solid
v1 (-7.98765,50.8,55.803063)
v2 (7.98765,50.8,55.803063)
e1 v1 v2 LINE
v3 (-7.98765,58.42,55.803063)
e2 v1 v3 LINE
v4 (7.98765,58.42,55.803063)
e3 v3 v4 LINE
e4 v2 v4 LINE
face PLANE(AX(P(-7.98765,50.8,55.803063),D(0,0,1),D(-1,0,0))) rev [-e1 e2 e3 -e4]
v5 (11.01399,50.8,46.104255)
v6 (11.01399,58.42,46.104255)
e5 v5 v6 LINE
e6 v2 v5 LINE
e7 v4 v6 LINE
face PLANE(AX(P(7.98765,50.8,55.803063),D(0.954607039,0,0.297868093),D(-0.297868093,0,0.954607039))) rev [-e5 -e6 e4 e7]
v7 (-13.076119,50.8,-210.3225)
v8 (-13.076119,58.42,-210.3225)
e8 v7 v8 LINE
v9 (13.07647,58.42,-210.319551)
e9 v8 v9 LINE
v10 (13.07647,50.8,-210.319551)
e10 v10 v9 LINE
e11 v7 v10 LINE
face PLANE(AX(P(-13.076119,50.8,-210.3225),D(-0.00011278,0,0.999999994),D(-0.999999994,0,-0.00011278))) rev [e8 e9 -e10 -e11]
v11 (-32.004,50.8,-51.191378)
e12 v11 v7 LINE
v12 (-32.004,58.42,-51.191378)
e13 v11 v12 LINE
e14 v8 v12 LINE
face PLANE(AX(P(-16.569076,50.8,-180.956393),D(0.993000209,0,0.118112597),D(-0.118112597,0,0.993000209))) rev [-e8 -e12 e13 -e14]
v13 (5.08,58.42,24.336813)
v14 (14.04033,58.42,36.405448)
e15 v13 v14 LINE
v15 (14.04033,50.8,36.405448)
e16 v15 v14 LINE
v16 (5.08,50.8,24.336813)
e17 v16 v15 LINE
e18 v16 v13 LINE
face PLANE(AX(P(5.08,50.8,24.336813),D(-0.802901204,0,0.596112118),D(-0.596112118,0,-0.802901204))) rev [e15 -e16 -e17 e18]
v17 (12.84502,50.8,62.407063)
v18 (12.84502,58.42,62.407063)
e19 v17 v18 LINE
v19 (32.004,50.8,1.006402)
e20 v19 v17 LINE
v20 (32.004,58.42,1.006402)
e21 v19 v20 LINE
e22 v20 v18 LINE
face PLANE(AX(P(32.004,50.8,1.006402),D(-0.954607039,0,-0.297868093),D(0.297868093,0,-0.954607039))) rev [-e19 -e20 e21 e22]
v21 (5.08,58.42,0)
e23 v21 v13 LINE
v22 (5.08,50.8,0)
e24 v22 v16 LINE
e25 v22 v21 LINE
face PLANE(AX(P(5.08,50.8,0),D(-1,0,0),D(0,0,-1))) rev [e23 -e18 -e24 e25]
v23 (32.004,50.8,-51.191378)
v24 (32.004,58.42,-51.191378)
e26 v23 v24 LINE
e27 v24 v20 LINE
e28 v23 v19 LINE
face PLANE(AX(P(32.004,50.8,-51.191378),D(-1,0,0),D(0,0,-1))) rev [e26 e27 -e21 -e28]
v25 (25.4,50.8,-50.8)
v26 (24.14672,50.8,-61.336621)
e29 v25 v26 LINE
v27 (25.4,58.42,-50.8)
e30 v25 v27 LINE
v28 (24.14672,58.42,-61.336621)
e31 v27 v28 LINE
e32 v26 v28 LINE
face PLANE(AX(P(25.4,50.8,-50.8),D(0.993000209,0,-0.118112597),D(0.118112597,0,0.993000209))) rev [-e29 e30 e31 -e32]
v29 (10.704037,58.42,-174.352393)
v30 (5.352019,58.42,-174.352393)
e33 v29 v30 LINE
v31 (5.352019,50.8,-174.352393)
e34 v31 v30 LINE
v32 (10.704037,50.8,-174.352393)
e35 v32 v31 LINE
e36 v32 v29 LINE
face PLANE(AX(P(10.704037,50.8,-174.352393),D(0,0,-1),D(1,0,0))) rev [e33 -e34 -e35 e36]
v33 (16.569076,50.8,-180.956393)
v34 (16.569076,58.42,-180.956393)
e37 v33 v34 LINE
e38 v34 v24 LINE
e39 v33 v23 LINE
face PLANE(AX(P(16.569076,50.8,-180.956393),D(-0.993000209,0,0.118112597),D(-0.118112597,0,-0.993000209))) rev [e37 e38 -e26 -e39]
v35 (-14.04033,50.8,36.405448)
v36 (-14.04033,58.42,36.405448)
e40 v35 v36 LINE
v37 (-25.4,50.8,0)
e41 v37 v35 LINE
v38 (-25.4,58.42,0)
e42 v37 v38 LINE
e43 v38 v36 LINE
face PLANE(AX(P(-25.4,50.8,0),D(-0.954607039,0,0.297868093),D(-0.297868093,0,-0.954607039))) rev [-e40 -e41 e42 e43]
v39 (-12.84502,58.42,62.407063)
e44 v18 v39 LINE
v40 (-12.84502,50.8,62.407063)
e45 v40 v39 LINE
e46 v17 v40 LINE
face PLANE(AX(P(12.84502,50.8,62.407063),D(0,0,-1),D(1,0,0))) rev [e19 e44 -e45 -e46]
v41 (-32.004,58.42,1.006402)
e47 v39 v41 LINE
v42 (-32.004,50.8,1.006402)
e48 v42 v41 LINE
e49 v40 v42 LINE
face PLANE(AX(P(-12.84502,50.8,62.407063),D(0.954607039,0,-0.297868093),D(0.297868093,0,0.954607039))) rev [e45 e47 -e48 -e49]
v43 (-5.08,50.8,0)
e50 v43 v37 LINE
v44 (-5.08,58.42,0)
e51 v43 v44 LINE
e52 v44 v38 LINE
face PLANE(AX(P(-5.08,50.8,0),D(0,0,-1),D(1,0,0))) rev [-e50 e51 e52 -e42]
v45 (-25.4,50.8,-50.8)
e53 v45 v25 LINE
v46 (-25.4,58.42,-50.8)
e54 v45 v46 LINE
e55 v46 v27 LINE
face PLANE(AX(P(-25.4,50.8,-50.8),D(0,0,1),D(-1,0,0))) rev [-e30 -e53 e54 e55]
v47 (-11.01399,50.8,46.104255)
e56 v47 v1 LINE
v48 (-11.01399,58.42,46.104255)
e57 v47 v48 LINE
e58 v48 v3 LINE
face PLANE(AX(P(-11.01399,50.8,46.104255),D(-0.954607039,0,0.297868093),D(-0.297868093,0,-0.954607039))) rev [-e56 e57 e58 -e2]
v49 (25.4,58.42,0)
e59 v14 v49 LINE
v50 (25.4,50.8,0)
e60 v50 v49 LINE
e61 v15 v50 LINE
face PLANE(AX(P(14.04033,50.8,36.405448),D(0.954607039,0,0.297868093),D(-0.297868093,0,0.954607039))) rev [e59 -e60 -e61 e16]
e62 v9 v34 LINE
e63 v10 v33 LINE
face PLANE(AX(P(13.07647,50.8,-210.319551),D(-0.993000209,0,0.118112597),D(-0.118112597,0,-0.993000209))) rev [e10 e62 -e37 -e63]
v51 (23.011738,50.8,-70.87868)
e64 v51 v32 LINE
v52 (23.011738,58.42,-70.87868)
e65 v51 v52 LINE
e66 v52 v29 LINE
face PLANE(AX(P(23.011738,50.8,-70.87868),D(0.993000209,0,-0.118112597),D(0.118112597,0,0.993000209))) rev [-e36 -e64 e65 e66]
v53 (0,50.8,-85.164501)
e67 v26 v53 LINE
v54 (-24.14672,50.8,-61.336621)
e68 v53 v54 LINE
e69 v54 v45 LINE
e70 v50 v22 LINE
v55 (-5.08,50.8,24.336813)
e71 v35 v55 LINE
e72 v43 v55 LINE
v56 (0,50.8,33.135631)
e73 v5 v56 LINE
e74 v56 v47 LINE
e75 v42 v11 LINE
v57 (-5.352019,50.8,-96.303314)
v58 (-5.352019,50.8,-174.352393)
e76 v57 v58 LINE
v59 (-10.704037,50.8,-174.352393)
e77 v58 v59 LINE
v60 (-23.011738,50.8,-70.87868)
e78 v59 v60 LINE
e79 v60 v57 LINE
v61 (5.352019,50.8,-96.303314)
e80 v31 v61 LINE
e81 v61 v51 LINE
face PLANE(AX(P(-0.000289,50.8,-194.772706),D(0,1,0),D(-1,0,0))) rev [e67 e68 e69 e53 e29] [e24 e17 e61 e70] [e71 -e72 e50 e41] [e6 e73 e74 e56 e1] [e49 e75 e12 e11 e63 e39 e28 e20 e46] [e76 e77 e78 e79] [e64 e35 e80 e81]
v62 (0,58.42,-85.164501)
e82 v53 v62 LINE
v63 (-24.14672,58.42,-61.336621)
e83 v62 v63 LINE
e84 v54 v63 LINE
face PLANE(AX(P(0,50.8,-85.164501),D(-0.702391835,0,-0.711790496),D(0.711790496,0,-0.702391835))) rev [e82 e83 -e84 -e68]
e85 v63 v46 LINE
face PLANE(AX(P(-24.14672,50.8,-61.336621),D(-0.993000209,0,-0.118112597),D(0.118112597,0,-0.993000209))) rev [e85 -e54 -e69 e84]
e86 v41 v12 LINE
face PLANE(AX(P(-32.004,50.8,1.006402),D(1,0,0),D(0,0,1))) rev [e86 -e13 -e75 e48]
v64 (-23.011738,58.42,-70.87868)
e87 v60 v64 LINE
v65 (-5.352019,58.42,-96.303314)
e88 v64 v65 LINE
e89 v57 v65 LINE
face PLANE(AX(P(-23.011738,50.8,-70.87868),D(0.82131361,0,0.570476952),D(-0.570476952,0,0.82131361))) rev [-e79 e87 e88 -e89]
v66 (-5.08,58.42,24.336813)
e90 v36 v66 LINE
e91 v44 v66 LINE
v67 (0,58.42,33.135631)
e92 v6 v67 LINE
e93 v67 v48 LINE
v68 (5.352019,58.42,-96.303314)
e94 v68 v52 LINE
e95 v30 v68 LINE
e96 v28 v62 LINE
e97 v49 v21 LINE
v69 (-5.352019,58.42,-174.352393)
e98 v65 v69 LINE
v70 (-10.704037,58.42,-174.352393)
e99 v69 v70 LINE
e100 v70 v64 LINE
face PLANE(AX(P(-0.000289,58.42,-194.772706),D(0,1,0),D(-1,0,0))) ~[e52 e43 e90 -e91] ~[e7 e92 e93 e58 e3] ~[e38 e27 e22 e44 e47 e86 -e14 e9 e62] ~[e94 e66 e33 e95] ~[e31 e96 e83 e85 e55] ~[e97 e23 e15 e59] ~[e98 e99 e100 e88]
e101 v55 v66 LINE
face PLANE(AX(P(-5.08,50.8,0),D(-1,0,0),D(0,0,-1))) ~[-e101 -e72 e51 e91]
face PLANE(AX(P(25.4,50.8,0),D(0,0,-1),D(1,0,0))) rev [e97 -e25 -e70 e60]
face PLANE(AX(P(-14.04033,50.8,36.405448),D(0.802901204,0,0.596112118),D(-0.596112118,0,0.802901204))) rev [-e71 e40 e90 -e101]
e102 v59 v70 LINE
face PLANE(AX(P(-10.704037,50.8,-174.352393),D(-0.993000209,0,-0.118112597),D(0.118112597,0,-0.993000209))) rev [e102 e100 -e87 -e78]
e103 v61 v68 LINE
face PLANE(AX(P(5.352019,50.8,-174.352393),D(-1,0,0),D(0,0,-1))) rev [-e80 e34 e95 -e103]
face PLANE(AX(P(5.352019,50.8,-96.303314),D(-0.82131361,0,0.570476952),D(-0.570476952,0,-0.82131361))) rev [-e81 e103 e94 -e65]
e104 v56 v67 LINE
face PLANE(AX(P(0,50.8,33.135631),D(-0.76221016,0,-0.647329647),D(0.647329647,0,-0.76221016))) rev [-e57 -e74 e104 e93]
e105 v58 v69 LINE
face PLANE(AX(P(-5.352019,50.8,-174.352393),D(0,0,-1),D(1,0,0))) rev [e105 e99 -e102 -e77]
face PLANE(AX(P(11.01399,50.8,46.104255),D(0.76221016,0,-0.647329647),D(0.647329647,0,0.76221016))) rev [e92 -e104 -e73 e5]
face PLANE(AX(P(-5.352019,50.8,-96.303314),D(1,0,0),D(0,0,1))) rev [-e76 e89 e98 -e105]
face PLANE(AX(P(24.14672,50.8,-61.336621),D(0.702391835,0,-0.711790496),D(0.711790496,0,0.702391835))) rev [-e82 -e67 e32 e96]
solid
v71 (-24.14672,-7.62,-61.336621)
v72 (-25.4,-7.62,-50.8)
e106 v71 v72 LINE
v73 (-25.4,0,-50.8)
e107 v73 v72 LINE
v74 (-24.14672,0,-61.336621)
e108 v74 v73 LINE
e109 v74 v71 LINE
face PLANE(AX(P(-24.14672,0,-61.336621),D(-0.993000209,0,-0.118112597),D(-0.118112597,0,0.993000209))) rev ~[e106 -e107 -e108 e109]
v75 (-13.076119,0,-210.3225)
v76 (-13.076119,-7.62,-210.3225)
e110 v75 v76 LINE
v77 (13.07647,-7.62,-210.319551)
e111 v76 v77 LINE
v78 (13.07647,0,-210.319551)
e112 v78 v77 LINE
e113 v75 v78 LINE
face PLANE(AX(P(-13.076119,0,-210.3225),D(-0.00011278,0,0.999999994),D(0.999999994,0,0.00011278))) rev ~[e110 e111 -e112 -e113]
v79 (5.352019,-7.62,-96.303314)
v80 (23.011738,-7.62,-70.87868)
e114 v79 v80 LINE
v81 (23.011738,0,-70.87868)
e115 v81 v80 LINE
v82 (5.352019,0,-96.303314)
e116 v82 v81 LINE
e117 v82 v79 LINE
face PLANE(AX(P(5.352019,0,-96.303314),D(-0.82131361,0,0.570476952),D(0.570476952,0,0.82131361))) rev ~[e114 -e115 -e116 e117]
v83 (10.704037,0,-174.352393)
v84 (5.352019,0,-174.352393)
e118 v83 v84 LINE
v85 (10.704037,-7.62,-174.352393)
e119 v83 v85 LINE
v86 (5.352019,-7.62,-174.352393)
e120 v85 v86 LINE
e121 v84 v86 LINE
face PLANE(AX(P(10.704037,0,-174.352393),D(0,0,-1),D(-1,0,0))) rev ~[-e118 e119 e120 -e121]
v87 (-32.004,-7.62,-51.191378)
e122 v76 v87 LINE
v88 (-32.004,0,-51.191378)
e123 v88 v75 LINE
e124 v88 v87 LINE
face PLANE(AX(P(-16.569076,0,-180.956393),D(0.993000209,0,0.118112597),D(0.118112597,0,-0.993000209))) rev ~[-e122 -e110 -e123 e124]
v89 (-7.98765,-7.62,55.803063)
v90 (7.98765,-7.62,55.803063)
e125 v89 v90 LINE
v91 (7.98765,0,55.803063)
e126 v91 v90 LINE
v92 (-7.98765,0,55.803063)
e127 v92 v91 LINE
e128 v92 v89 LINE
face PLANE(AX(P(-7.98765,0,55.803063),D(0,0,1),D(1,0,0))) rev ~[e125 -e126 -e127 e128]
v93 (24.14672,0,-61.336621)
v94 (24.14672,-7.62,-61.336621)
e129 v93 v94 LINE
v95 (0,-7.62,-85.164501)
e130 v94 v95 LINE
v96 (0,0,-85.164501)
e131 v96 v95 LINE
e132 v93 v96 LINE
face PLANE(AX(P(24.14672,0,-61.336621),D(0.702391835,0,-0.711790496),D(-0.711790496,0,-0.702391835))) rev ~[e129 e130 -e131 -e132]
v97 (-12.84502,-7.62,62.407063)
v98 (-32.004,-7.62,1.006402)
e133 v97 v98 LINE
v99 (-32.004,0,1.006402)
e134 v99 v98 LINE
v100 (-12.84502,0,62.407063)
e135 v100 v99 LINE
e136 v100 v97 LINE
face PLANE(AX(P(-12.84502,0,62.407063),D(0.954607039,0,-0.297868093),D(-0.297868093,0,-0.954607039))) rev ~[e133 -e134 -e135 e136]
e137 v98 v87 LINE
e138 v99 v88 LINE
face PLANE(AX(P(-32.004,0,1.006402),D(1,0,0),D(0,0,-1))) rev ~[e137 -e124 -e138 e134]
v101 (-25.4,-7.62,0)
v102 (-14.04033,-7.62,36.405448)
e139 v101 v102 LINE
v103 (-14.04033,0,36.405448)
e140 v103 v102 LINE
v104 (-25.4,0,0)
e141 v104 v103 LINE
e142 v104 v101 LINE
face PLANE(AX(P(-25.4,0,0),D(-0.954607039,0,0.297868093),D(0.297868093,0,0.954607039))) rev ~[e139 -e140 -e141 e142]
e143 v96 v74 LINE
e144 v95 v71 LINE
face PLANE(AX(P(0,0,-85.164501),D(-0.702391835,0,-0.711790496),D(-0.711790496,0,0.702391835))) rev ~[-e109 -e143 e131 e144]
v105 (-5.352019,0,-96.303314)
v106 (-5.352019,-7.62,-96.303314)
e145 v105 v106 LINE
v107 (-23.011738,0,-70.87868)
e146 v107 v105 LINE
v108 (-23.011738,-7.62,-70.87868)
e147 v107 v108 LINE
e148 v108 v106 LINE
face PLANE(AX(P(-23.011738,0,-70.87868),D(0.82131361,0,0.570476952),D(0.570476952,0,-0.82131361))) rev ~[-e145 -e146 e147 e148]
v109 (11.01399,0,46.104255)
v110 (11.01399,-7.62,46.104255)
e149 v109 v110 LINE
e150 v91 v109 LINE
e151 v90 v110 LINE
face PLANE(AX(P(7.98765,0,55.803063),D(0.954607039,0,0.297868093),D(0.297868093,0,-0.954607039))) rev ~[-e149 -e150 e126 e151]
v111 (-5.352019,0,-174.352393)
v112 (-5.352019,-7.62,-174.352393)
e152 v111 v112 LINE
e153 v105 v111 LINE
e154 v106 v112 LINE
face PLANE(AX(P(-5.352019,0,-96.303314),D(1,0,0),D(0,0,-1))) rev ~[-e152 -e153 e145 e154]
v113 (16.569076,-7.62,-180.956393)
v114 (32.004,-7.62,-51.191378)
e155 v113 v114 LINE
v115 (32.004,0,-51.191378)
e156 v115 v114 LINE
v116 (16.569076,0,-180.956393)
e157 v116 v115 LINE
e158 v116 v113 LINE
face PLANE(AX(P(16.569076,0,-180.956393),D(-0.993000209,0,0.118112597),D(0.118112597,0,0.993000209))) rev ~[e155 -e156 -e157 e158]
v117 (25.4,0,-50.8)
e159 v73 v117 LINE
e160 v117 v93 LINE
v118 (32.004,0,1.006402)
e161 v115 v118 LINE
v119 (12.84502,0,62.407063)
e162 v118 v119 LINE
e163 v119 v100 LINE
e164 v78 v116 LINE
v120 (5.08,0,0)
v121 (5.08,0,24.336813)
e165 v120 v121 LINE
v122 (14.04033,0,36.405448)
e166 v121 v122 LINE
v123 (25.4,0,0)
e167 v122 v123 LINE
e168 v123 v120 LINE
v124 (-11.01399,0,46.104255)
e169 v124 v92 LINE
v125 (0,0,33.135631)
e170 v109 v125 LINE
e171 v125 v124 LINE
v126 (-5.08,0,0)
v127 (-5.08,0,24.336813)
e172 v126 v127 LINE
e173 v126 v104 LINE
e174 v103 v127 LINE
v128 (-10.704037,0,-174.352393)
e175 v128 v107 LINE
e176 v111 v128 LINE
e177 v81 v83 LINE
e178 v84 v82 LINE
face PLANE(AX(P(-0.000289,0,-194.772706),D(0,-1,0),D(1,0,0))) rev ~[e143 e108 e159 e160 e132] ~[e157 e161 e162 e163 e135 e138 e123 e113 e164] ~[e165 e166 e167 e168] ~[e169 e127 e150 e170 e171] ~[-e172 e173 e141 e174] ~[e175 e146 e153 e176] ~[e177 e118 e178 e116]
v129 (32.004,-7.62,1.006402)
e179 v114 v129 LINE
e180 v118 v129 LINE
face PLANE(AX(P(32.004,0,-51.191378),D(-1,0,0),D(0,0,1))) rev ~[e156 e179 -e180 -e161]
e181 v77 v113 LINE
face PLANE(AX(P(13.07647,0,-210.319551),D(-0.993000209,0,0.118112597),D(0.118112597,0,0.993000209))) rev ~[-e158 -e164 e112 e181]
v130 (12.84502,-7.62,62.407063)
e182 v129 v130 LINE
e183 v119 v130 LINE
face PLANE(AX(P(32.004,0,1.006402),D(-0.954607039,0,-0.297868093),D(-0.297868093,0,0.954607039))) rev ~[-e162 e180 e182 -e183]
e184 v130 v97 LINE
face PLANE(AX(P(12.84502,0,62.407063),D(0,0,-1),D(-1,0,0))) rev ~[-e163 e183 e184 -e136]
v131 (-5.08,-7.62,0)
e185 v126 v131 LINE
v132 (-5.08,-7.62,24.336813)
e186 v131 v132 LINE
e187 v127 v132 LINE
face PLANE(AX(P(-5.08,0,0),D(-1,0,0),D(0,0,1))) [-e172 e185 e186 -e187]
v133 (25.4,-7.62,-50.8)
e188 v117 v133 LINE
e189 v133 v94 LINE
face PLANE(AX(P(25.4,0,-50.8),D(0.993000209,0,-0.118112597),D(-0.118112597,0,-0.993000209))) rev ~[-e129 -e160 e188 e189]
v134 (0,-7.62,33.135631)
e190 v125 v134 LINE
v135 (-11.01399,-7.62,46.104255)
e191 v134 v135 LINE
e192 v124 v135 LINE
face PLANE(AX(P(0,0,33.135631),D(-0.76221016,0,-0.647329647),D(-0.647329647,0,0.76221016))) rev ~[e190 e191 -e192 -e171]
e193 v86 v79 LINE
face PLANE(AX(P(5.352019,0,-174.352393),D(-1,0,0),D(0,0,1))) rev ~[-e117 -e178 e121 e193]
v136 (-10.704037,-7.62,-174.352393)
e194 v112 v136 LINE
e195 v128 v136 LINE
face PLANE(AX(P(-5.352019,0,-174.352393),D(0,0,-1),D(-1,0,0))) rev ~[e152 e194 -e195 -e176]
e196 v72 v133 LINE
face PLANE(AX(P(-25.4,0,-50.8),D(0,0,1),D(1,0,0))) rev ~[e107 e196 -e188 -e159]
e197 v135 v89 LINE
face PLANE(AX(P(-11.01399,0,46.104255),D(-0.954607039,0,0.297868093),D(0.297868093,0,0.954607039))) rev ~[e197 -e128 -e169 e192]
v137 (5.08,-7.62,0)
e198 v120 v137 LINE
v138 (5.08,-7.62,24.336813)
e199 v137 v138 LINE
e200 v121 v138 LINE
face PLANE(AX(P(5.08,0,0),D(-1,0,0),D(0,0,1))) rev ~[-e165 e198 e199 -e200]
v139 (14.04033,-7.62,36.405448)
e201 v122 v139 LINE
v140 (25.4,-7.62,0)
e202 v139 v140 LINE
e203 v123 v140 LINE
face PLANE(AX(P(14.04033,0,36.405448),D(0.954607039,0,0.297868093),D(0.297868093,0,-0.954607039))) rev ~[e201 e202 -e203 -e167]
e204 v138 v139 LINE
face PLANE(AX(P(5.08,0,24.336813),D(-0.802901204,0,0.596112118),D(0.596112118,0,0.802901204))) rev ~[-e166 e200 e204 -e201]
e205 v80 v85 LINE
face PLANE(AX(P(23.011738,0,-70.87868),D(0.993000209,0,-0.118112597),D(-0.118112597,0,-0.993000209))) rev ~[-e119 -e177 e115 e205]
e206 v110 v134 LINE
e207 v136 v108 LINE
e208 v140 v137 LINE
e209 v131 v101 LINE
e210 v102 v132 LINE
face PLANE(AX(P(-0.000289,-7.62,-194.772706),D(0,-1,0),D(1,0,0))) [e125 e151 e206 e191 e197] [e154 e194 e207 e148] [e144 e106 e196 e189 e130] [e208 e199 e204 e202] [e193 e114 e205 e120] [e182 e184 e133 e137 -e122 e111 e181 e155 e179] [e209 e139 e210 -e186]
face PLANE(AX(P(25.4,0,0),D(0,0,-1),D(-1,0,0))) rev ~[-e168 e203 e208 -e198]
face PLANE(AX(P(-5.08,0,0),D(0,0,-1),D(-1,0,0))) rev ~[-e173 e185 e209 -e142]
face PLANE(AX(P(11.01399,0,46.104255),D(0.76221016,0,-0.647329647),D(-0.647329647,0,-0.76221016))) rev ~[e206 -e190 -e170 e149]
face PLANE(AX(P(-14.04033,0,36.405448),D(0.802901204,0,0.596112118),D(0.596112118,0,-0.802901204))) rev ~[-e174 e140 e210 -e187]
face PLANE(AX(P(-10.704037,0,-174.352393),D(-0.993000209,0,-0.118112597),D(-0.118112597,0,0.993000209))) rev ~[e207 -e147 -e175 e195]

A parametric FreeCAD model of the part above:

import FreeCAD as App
import Part
import Sketcher
Q = App.Units.Quantity


def add_polygon(sketch, points):
    """Adds a closed chain of lines whose ends are joined by coincident constraints."""
    first, n = sketch.GeometryCount, len(points)
    for a, b in zip(points, points[1:] + points[:1]):
        sketch.addGeometry(Part.LineSegment(App.Vector(*a, 0), App.Vector(*b, 0)), False)
    for i in range(n):
        sketch.addConstraint(Sketcher.Constraint("Coincident", first + i, 2, first + (i + 1) % n, 1))

doc = App.newDocument("Part")
body = doc.addObject("PartDesign::Body", "Body")

sketch1 = body.newObject("Sketcher::SketchObject", "Sketch")
sketch1.AttachmentSupport = (doc.getObject("XZ_Plane"), [""])
sketch1.MapMode = "FlatFace"
add_polygon(sketch1, [(-12.84502, 62.407063), (-32.004, 1.006402), (-32.004, -51.191378), (-16.569076, -180.956393), (16.569076, -180.956393), (32.004, -51.191378), (32.004, 1.006402), (12.84502, 62.407063)])
add_polygon(sketch1, [(-23.011738, -70.87868), (-5.352019, -96.303314), (-5.352019, -174.352393), (-10.704037, -174.352393)])
add_polygon(sketch1, [(5.352019, -174.352393), (5.352019, -96.303314), (23.011738, -70.87868), (10.704037, -174.352393)])
add_polygon(sketch1, [(24.14672, -61.336621), (0, -85.164501), (-24.14672, -61.336621), (-25.4, -50.8), (25.4, -50.8)])
add_polygon(sketch1, [(-14.04033, 36.405448), (-5.08, 24.336813), (-5.08, 0), (-25.4, 0)])
add_polygon(sketch1, [(11.01399, 46.104255), (0, 33.135631), (-11.01399, 46.104255), (-7.98765, 55.803063), (7.98765, 55.803063)])
add_polygon(sketch1, [(5.08, 0), (5.08, 24.336813), (14.04033, 36.405448), (25.4, 0)])
sketch1.addConstraint([
    Sketcher.Constraint("Vertical", 1),
    Sketcher.Constraint("Horizontal", 3),
    Sketcher.Constraint("Vertical", 5),
    Sketcher.Constraint("Horizontal", 7),
    Sketcher.Constraint("Vertical", 9),
    Sketcher.Constraint("Horizontal", 10),
    Sketcher.Constraint("Vertical", 12),
    Sketcher.Constraint("Horizontal", 15),
    Sketcher.Constraint("Horizontal", 19),
    Sketcher.Constraint("Vertical", 22),
    Sketcher.Constraint("Horizontal", 23),
    Sketcher.Constraint("Horizontal", 28),
    Sketcher.Constraint("Vertical", 30),
    Sketcher.Constraint("Horizontal", 33),
    Sketcher.Constraint("PointOnObject", 16, 2, -2),
    Sketcher.Constraint("PointOnObject", 22, 2, -1),
    Sketcher.Constraint("PointOnObject", 25, 2, -2),
    Sketcher.Constraint("PointOnObject", 32, 2, -1),
    Sketcher.Constraint("DistanceX", 19, 1, 19, 2, Q("2 in")),
    Sketcher.Constraint("DistanceX", 23, 2, 23, 1, Q("0.8 in")),
    Sketcher.Constraint("DistanceX", 33, 2, 33, 1, Q("0.8 in")),
    Sketcher.Constraint("DistanceX", 18, 2, -1, 1, Q("1 in")),
    Sketcher.Constraint("DistanceY", 18, 2, -1, 1, Q("2 in")),
    Sketcher.Constraint("DistanceX", 23, 2, -1, 1, Q("1 in")),
    Sketcher.Constraint("DistanceX", -1, 1, 32, 2, Q("1 in")),
    Sketcher.Constraint("Distance", 27, Q("0.4 in")),
    Sketcher.Constraint("Distance", 29, Q("0.4 in")),
    Sketcher.Constraint("DistanceX", 0, 2, -1, 1, Q("1.26 in")),
    Sketcher.Constraint("DistanceX", -1, 1, 4, 2, Q("1.26 in")),
    Sketcher.Constraint("DistanceY", 2, 2, 9, 2, Q("0.26 in")),
    Sketcher.Constraint("DistanceY", 3, 2, 14, 2, Q("0.26 in")),
    Sketcher.Constraint("DistanceY", 27, 2, 7, 2, Q("0.26 in")),
    Sketcher.Constraint("DistanceX", 28, 1, 28, 2, 15.9753),
    Sketcher.Constraint("Distance", 25, 17.014499),
    Sketcher.Constraint("Distance", 26, 17.014499),
    Sketcher.Constraint("DistanceX", 3, 1, 3, 2, 33.138152),
    Sketcher.Constraint("DistanceX", 7, 2, 7, 1, 25.690039),
    Sketcher.Constraint("DistanceX", 10, 2, 10, 1, 5.352019),
    Sketcher.Constraint("DistanceX", 15, 2, 15, 1, 5.352019),
    Sketcher.Constraint("DistanceY", 1, 2, 1, 1, 52.19778),
    Sketcher.Constraint("DistanceY", 5, 1, 5, 2, 52.19778),
    Sketcher.Constraint("DistanceY", 9, 2, 9, 1, 78.049079),
    Sketcher.Constraint("DistanceY", 12, 1, 12, 2, 78.049079),
    Sketcher.Constraint("DistanceY", 16, 2, -1, 1, 85.164501),
    Sketcher.Constraint("DistanceX", 17, 2, 8, 2, 18.794701),
    Sketcher.Constraint("DistanceX", 12, 2, 20, 2, 18.794701),
    Sketcher.Constraint("Distance", 0, 64.320352),
    Sketcher.Constraint("Distance", 6, 64.320352),
    Sketcher.Constraint("Distance", 8, 30.95606),
    Sketcher.Constraint("Distance", 13, 30.95606),
    Sketcher.Constraint("Distance", 24, 38.13658),
    Sketcher.Constraint("Distance", 32, 38.13658),
    Sketcher.Constraint("DistanceY", 22, 2, 22, 1, 24.336813),
    Sketcher.Constraint("DistanceY", 30, 1, 30, 2, 24.336813),
    Sketcher.Constraint("DistanceX", -1, 1, 6, 2, 12.84502),
    Sketcher.Constraint("DistanceX", 8, 2, -1, 1, 5.352019),
    Sketcher.Constraint("DistanceY", 11, 2, -1, 1, 70.87868),
    Sketcher.Constraint("DistanceX", -1, 1, 12, 2, 5.352019),
    Sketcher.Constraint("DistanceY", 13, 2, -1, 1, 70.87868),
    Sketcher.Constraint("DistanceY", 17, 2, -1, 1, 61.336621),
    Sketcher.Constraint("DistanceY", 20, 2, -1, 1, 61.336621),
    Sketcher.Constraint("DistanceX", 24, 2, -1, 1, 14.04033),
    Sketcher.Constraint("DistanceY", -1, 1, 25, 2, 33.135631),
    Sketcher.Constraint("DistanceX", 26, 2, -1, 1, 11.01399),
    Sketcher.Constraint("DistanceX", 27, 2, -1, 1, 7.98765),
    Sketcher.Constraint("DistanceX", -1, 1, 31, 2, 14.04033),
    Sketcher.Constraint("DistanceX", 2, 2, 10, 2, 5.865039),
    Sketcher.Constraint("DistanceX", 11, 2, 8, 2, 17.659719),
])
pad1 = body.newObject("PartDesign::Pad", "Pad")
pad1.Profile = sketch1
pad1.Length = Q("0.3 in")

sketch2 = body.newObject("Sketcher::SketchObject", "Sketch001")
sketch2.AttachmentSupport = (doc.getObject("XZ_Plane"), [""])
sketch2.MapMode = "FlatFace"
add_polygon(sketch2, [(-16.569076, -180.956393), (-13.076119, -210.3225), (13.07647, -210.319551), (16.569076, -180.956393)])
sketch2.addConstraint([
    Sketcher.Constraint("Horizontal", 3),
    Sketcher.Constraint("DistanceX", 3, 2, 3, 1, 33.138152),
    Sketcher.Constraint("DistanceY", 0, 2, -1, 1, 210.3225),
    Sketcher.Constraint("Distance", 1, 26.152588),
    Sketcher.Constraint("DistanceX", 0, 2, -1, 1, 13.076119),
    Sketcher.Constraint("DistanceY", 1, 2, -1, 1, 210.319551),
    Sketcher.Constraint("DistanceY", 1, 2, 2, 2, 29.363158),
    Sketcher.Constraint("Distance", 0, 29.573113),
])
pad2 = body.newObject("PartDesign::Pad", "Pad001")
pad2.Profile = sketch2
pad2.Length = Q("0.3 in")
body2 = doc.addObject("PartDesign::Body", "Body001")
doc.recompute()

mirroring = doc.addObject("Part::Mirroring", "Mirroring")
mirroring.Source = body
mirroring.Base = App.Vector(0, 25.4, 0)
mirroring.Normal = App.Vector(0, -1, 0)
body2.BaseFeature = mirroring
doc.recompute()
mirroring.Visibility = False

doc.recompute()
